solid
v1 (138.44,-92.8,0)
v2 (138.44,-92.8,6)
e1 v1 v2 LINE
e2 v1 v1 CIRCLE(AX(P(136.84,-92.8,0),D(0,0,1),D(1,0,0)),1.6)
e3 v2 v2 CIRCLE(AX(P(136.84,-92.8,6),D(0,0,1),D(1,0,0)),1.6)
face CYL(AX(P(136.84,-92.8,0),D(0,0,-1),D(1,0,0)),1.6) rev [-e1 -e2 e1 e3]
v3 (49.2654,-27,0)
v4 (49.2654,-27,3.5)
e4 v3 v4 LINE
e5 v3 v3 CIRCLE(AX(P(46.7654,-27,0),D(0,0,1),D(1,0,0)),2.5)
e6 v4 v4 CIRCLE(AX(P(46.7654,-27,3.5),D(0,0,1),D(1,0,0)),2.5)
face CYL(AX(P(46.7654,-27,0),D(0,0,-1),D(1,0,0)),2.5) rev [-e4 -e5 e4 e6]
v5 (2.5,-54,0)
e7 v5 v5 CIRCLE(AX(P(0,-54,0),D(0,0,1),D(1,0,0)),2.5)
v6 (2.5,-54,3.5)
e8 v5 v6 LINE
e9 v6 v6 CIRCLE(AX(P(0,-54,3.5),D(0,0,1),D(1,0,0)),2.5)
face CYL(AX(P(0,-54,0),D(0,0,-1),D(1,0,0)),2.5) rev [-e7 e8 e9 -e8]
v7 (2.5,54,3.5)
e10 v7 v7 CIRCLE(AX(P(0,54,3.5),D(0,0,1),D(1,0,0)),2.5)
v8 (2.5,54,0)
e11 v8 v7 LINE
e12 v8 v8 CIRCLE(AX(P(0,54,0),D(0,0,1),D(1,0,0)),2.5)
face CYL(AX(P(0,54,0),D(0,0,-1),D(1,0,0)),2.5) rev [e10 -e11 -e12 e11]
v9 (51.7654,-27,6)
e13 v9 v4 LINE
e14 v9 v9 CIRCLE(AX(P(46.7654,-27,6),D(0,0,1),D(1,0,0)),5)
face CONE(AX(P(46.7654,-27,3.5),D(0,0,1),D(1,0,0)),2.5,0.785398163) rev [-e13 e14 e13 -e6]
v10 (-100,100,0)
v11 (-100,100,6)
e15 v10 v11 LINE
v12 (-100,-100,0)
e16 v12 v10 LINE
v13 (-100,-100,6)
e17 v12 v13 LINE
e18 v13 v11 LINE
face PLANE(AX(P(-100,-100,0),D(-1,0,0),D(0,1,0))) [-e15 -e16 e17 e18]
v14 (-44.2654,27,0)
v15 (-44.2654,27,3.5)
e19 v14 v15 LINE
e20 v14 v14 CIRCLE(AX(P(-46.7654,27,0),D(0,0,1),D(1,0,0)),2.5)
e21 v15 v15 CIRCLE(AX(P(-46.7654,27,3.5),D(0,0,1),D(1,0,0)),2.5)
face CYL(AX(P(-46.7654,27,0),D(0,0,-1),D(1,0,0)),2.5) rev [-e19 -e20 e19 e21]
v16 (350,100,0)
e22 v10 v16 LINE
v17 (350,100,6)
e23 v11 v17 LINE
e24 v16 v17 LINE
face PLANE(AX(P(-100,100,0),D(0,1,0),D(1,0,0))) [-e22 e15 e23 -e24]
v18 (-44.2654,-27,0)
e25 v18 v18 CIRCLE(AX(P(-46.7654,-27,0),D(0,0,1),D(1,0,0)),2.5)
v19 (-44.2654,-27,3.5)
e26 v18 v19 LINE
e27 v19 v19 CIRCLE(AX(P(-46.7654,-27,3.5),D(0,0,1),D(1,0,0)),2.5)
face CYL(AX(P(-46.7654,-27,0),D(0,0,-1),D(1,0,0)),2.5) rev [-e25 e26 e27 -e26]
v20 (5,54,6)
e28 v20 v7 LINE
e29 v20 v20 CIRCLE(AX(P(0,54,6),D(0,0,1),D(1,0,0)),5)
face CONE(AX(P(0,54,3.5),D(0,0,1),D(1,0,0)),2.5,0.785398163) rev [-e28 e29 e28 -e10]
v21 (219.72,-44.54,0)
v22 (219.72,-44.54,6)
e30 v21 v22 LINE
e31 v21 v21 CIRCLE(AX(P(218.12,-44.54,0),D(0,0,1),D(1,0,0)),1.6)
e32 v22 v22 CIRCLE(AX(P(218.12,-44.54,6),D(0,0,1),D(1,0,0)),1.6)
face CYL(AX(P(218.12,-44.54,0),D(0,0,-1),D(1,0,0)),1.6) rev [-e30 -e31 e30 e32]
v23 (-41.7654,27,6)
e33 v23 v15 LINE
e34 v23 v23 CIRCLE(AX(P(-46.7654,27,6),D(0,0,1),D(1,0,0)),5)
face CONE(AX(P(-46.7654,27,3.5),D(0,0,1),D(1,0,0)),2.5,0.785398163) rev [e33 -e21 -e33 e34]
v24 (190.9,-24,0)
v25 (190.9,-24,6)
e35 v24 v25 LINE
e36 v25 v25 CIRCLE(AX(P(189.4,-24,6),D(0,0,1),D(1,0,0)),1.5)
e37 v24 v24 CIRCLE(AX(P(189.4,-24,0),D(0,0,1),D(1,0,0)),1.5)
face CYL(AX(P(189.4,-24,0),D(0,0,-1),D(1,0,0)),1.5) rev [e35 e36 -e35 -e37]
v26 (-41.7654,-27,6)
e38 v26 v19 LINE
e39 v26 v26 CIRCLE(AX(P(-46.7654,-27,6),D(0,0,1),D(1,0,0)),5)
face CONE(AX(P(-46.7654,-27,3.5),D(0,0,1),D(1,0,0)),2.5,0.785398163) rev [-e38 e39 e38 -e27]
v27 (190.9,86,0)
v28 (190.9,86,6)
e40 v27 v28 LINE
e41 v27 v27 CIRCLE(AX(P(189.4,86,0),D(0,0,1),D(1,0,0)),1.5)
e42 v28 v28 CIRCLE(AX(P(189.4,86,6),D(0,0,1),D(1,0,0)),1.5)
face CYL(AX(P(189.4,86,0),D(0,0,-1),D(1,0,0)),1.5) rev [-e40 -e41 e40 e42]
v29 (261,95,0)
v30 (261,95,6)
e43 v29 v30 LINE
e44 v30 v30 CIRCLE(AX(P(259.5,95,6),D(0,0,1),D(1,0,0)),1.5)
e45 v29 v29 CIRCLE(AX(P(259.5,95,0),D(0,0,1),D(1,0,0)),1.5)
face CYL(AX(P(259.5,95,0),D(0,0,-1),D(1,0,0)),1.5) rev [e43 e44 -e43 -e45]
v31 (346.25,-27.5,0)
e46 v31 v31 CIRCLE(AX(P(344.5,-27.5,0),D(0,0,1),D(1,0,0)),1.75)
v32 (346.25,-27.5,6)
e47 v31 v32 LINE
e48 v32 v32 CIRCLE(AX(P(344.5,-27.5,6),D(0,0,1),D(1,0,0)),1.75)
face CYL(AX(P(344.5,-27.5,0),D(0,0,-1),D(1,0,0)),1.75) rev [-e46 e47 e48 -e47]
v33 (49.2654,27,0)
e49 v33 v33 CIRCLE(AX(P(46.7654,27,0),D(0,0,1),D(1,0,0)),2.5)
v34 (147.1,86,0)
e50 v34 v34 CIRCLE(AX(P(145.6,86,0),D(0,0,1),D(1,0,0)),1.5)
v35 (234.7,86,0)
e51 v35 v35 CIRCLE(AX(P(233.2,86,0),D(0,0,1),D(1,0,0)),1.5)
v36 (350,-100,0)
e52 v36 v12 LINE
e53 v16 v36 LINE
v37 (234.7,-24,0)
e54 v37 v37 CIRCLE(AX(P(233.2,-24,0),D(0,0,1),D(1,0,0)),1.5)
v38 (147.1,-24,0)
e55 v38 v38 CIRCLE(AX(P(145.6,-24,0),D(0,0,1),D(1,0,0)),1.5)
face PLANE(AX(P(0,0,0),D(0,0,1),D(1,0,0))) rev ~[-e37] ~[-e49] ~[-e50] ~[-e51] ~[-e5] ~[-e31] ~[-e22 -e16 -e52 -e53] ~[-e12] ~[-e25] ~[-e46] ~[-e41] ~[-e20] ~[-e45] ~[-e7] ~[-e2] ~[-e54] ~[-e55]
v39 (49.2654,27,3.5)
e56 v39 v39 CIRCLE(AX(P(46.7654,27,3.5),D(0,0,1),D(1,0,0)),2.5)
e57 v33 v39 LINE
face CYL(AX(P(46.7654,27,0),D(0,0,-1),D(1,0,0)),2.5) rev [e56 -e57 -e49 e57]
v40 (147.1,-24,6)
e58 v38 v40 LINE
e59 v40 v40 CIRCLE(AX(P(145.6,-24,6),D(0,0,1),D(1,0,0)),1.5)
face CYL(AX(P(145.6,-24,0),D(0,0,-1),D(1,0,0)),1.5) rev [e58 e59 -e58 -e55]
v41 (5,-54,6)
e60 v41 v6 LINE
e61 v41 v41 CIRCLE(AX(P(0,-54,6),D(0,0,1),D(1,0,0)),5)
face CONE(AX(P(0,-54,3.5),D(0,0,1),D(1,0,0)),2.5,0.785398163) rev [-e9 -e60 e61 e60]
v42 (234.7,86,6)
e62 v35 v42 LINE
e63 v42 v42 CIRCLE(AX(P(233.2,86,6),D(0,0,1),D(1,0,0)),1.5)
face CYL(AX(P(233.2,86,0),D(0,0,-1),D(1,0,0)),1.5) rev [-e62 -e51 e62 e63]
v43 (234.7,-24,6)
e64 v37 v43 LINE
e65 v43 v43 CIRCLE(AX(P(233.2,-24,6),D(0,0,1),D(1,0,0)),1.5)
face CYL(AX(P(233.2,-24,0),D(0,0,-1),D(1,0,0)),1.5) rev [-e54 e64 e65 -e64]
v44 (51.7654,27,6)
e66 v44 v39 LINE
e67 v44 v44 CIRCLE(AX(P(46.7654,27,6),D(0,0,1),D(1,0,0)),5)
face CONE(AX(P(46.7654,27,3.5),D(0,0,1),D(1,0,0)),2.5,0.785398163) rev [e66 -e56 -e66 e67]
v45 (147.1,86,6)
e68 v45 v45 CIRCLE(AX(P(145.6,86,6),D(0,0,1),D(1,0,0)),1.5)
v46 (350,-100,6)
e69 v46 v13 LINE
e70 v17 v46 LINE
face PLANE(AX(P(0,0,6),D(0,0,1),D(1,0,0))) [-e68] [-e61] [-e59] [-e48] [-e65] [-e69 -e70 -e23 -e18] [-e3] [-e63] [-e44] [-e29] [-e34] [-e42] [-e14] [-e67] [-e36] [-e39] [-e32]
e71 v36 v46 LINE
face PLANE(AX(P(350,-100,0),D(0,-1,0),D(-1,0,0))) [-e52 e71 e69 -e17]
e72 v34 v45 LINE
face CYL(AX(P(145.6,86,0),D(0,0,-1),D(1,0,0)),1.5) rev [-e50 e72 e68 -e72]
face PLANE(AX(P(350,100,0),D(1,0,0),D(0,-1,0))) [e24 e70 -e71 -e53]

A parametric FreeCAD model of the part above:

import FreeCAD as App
import Part
import Sketcher

V = App.Vector


def edges_at(feature, points):
    """Names of the edges that pass closest to the given points."""
    edges = feature.Shape.Edges
    near = lambda p: min(range(len(edges)), key=lambda i: edges[i].distToShape(Part.Vertex(*p))[0])
    return sorted({f"Edge{near(p) + 1}" for p in points})


def add_polygon(sketch, points):
    """Adds a closed chain of lines whose ends are joined by coincident constraints."""
    first, n = sketch.GeometryCount, len(points)
    for a, b in zip(points, points[1:] + points[:1]):
        sketch.addGeometry(Part.LineSegment(App.Vector(*a, 0), App.Vector(*b, 0)), False)
    for i in range(n):
        sketch.addConstraint(Sketcher.Constraint("Coincident", first + i, 2, first + (i + 1) % n, 1))

doc = App.newDocument("Part")
body = doc.addObject("PartDesign::Body", "Body")

# Sketch on XY plane
sketch1 = body.newObject("Sketcher::SketchObject", "Sketch")
sketch1.AttachmentSupport = (doc.getObject("XY_Plane"), [""])
sketch1.MapMode = "FlatFace"
add_polygon(sketch1, [(-100, -100), (350, -100), (350, 100), (-100, 100)])  # lines 0-3
sketch1.addGeometry(Part.Circle(V(136.8, -92.8, 0), V(0, 0, 1), 1.6), False)  # 4
sketch1.addGeometry(Part.Circle(V(218.1, -44.5, 0), V(0, 0, 1), 1.6), False)  # 5
sketch1.addGeometry(Part.Circle(V(145.6, -24, 0), V(0, 0, 1), 1.5), False)  # 6
sketch1.addGeometry(Part.Circle(V(189.4, -24, 0), V(0, 0, 1), 1.5), False)  # 7
sketch1.addGeometry(Part.Circle(V(233.2, -24, 0), V(0, 0, 1), 1.5), False)  # 8
sketch1.addGeometry(Part.Circle(V(344.5, -27.5, 0), V(0, 0, 1), 1.8), False)  # 9
sketch1.addGeometry(Part.Circle(V(145.6, 86, 0), V(0, 0, 1), 1.5), False)  # 10
sketch1.addGeometry(Part.Circle(V(189.4, 86, 0), V(0, 0, 1), 1.5), False)  # 11
sketch1.addGeometry(Part.Circle(V(233.2, 86, 0), V(0, 0, 1), 1.5), False)  # 12
sketch1.addGeometry(Part.Circle(V(259.5, 95, 0), V(0, 0, 1), 1.5), False)  # 13
sketch1.addGeometry(Part.Circle(V(0, -54, 0), V(0, 0, 1), 2.5), False)  # 14
sketch1.addGeometry(Part.Circle(V(-46.8, -27, 0), V(0, 0, 1), 2.5), False)  # 15
sketch1.addGeometry(Part.Circle(V(46.8, -27, 0), V(0, 0, 1), 2.5), False)  # 16
sketch1.addGeometry(Part.Circle(V(-46.8, 27, 0), V(0, 0, 1), 2.5), False)  # 17
sketch1.addGeometry(Part.Circle(V(46.8, 27, 0), V(0, 0, 1), 2.5), False)  # 18
sketch1.addGeometry(Part.Circle(V(0, 54, 0), V(0, 0, 1), 2.5), False)  # 19
sketch1.addConstraint(Sketcher.Constraint("Horizontal", 0))
sketch1.addConstraint(Sketcher.Constraint("Vertical", 1))
sketch1.addConstraint(Sketcher.Constraint("Horizontal", 2))
sketch1.addConstraint(Sketcher.Constraint("Vertical", 3))
sketch1.addConstraint(Sketcher.Constraint("Equal", 4, 5))
sketch1.addConstraint(Sketcher.Constraint("Equal", 6, 7))
sketch1.addConstraint(Sketcher.Constraint("Equal", 7, 8))
sketch1.addConstraint(Sketcher.Constraint("Equal", 8, 10))
sketch1.addConstraint(Sketcher.Constraint("Equal", 10, 11))
sketch1.addConstraint(Sketcher.Constraint("Equal", 11, 12))
sketch1.addConstraint(Sketcher.Constraint("Equal", 12, 13))
sketch1.addConstraint(Sketcher.Constraint("Equal", 14, 15))
sketch1.addConstraint(Sketcher.Constraint("Equal", 15, 16))
sketch1.addConstraint(Sketcher.Constraint("Equal", 16, 17))
sketch1.addConstraint(Sketcher.Constraint("Equal", 17, 18))
sketch1.addConstraint(Sketcher.Constraint("Equal", 18, 19))
sketch1.addConstraint(Sketcher.Constraint("Symmetric", 16, 3, 17, 3, -1, 1))
sketch1.addConstraint(Sketcher.Constraint("Symmetric", 15, 3, 18, 3, -1, 1))
sketch1.addConstraint(Sketcher.Constraint("Symmetric", 14, 3, 19, 3, -1, 1))
sketch1.addConstraint(Sketcher.Constraint("Symmetric", 15, 3, 16, 3, -2))
sketch1.addConstraint(Sketcher.Constraint("PointOnObject", 14, 3, -2))
sketch1.addConstraint(Sketcher.Constraint("Horizontal", 6, 3, 7, 3))
sketch1.addConstraint(Sketcher.Constraint("Horizontal", 7, 3, 8, 3))
sketch1.addConstraint(Sketcher.Constraint("Horizontal", 10, 3, 11, 3))
sketch1.addConstraint(Sketcher.Constraint("Horizontal", 11, 3, 12, 3))
sketch1.addConstraint(Sketcher.Constraint("Vertical", 6, 3, 10, 3))
sketch1.addConstraint(Sketcher.Constraint("Vertical", 7, 3, 11, 3))
sketch1.addConstraint(Sketcher.Constraint("Vertical", 8, 3, 12, 3))
sketch1.addConstraint(Sketcher.Constraint("Diameter", 6, 3.0))
sketch1.addConstraint(Sketcher.Constraint("Diameter", 14, 5.0))
sketch1.addConstraint(Sketcher.Constraint("DistanceX", 0, 1, 0, 2, 450.0))
sketch1.addConstraint(Sketcher.Constraint("DistanceY", 1, 1, 1, 2, 200.0))
sketch1.addConstraint(Sketcher.Constraint("DistanceY", 0, 2, -1, 1, 100.0))
sketch1.addConstraint(Sketcher.Constraint("DistanceX", 2, 2, -1, 1, 100.0))
sketch1.addConstraint(Sketcher.Constraint("DistanceY", 15, 3, 6, 3, 3.0))
sketch1.addConstraint(Sketcher.Constraint("DistanceY", 13, 3, 1, 2, 5.0))
sketch1.addConstraint(Sketcher.Constraint("Diameter", 4, 3.2))
sketch1.addConstraint(Sketcher.Constraint("Diameter", 9, 3.5))
sketch1.addConstraint(Sketcher.Constraint("DistanceY", 6, 3, -1, 1, 24.0))
sketch1.addConstraint(Sketcher.Constraint("DistanceY", -1, 1, 10, 3, 86.0))
sketch1.addConstraint(Sketcher.Constraint("DistanceY", 14, 3, -1, 1, 54.0))
sketch1.addConstraint(Sketcher.Constraint("DistanceY", 4, 3, -1, 1, 92.8))
sketch1.addConstraint(Sketcher.Constraint("DistanceX", -1, 1, 6, 3, 145.6))
sketch1.addConstraint(Sketcher.Constraint("DistanceX", -1, 1, 7, 3, 189.4))
sketch1.addConstraint(Sketcher.Constraint("DistanceX", -1, 1, 8, 3, 233.2))
sketch1.addConstraint(Sketcher.Constraint("DistanceX", -1, 1, 9, 3, 344.5))
sketch1.addConstraint(Sketcher.Constraint("DistanceY", 9, 3, -1, 1, 27.5))
sketch1.addConstraint(Sketcher.Constraint("DistanceX", -1, 1, 13, 3, 259.5))
sketch1.addConstraint(Sketcher.Constraint("DistanceX", -1, 1, 4, 3, 136.84))
sketch1.addConstraint(Sketcher.Constraint("DistanceX", -1, 1, 5, 3, 218.12))
sketch1.addConstraint(Sketcher.Constraint("DistanceY", 5, 3, -1, 1, 44.54))
sketch1.addConstraint(Sketcher.Constraint("DistanceX", 15, 3, -1, 1, 46.7654))
pad1 = body.newObject("PartDesign::Pad", "Pad")
pad1.Profile = sketch1
pad1.Length = 6
doc.recompute()

chamfer = body.newObject("PartDesign::Chamfer", "Chamfer")
chamfer.Base = (pad1, edges_at(pad1, [
    (-2.5, -54, 6),
    (-49.265, -27, 6),
    (-49.265, 27, 6),
    (-2.5, 54, 6),
    (44.265, 27, 6),
    (44.265, -27, 6),
]))
chamfer.Size = 2.5

doc.recompute()
